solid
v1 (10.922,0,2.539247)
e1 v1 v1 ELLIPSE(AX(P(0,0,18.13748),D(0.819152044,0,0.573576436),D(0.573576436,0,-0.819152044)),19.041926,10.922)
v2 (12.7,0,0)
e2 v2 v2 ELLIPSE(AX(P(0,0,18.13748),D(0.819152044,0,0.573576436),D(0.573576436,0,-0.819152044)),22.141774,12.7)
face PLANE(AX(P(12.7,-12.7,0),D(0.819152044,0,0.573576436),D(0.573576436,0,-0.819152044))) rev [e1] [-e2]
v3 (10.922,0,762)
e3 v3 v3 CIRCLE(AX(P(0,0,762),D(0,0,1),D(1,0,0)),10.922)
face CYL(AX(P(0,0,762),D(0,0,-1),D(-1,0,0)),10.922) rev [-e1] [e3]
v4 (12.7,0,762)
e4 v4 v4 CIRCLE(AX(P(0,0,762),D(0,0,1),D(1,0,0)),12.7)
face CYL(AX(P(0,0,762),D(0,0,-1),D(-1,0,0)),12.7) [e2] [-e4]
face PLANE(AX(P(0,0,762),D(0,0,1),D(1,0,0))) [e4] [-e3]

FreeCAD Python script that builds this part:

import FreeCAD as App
import Part
import Sketcher
from FreeCAD import Vector
Q = App.Units.Quantity


def add_polygon(sketch, points):
    """Adds a closed chain of lines whose ends are joined by coincident constraints."""
    first, n = sketch.GeometryCount, len(points)
    for a, b in zip(points, points[1:] + points[:1]):
        sketch.addGeometry(Part.LineSegment(App.Vector(*a, 0), App.Vector(*b, 0)), False)
    for i in range(n):
        sketch.addConstraint(Sketcher.Constraint("Coincident", first + i, 2, first + (i + 1) % n, 1))

doc = App.newDocument("Part")
body = doc.addObject("PartDesign::Body", "Body")

# Sketch on XY plane
sketch1 = body.newObject("Sketcher::SketchObject", "Sketch")
sketch1.AttachmentSupport = (doc.getObject("XY_Plane"), [""])
sketch1.MapMode = "FlatFace"
sketch1.addGeometry(Part.Circle(Vector(0, 0, 0), Vector(0, 0, 1), 12.7), False)
sketch1.addGeometry(Part.Circle(Vector(0, 0, 0), Vector(0, 0, 1), 10.922), False)
sketch1.addConstraint(Sketcher.Constraint("Coincident", 0, 3, -1, 1))
sketch1.addConstraint(Sketcher.Constraint("Coincident", 1, 3, -1, 1))
sketch1.addConstraint(Sketcher.Constraint("Diameter", 0, Q("1 in")))
sketch1.addConstraint(Sketcher.Constraint("Diameter", 1, Q("0.86 in")))
pad1 = body.newObject("PartDesign::Pad", "Pad")
pad1.Profile = sketch1
pad1.Length = Q("30 in")

# Sketch on XZ plane
sketch2 = body.newObject("Sketcher::SketchObject", "Sketch001")
sketch2.AttachmentSupport = (doc.getObject("XZ_Plane"), [""])
sketch2.MapMode = "FlatFace"
add_polygon(sketch2, [(12.7, 0), (-50.8, 0), (-50.8, 90.687398)])  # lines 0-2
sketch2.addConstraint(Sketcher.Constraint("Horizontal", 0))
sketch2.addConstraint(Sketcher.Constraint("Vertical", 1))
sketch2.addConstraint(Sketcher.Constraint("PointOnObject", 0, 2, -1))
sketch2.addConstraint(Sketcher.Constraint("DistanceX", 0, 2, 0, 1, Q("2.5 in")))
sketch2.addConstraint(Sketcher.Constraint("DistanceX", 0, 2, -1, 1, Q("2 in")))
sketch2.addConstraint(Sketcher.Constraint("Angle", 2, Q("-55 deg")))
pocket1 = body.newObject("PartDesign::Pocket", "Pocket")
pocket1.Profile = sketch2
pocket1.Type = "ThroughAll"
pocket1.Midplane = True

doc.recompute()
